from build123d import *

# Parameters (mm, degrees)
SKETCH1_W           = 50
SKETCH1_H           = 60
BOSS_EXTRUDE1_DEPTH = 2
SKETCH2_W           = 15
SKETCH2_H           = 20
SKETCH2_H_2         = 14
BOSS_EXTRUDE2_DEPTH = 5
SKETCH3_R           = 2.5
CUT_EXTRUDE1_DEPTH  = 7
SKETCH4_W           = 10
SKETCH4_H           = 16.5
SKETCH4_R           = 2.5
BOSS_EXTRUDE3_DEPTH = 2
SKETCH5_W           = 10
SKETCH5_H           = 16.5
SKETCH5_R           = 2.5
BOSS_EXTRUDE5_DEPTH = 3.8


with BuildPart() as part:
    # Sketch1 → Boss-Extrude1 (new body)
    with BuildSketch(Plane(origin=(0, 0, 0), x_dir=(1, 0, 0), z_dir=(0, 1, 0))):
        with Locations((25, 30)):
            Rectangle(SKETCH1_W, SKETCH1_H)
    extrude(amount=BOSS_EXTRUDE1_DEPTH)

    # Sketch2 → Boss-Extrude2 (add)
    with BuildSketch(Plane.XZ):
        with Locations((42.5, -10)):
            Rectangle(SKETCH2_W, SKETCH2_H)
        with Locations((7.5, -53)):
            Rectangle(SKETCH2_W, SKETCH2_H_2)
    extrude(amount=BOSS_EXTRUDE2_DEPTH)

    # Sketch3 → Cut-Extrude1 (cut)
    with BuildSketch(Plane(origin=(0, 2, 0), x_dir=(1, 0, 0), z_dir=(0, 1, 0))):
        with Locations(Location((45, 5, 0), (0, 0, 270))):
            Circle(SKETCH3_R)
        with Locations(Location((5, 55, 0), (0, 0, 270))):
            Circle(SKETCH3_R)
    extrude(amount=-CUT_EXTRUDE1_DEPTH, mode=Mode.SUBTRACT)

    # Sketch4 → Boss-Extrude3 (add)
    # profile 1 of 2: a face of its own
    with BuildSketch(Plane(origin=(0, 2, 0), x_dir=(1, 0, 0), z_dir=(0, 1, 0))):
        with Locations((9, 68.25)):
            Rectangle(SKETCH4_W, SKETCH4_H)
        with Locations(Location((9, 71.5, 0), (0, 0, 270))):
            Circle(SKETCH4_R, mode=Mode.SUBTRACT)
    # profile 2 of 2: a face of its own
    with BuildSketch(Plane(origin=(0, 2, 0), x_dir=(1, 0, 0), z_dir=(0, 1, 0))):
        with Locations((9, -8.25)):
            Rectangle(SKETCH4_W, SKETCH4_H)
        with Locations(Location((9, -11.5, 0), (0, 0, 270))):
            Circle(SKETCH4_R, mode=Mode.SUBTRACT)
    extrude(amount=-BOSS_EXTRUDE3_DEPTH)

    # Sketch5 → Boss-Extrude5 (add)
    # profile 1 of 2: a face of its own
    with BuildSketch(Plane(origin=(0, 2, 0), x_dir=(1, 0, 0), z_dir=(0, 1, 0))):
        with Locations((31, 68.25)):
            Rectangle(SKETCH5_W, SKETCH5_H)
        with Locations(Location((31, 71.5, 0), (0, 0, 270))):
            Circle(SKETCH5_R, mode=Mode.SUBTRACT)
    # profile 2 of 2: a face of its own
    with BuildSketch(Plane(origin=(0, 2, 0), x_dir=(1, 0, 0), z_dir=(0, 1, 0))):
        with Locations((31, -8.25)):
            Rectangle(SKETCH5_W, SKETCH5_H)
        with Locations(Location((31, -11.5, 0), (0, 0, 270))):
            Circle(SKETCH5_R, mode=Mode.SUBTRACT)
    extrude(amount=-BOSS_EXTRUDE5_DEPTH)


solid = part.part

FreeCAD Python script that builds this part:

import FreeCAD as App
import Part
import Sketcher
Q = App.Units.Quantity

doc = App.newDocument("Part")
params = doc.addObject("Spreadsheet::Sheet", "Params")
for row, (alias, value) in enumerate([
    ("sketch1_width", "50 mm"),
    ("sketch1_height", "60 mm"),
    ("pad1_length", "2 mm"),
    ("sketch2_width", "15 mm"),
    ("sketch2_height", "20 mm"),
    ("sketch2_height2", "14 mm"),
    ("pad2_length", "5 mm"),
    ("sketch3_diameter", "5 mm"),
    ("pocket1_length", "7 mm"),
    ("sketch4_diameter", "5 mm"),
    ("sketch4_width", "10 mm"),
    ("sketch4_height", "16.5 mm"),
    ("pad3_length", "2 mm"),
    ("sketch5_diameter", "5 mm"),
    ("sketch5_width", "10 mm"),
    ("sketch5_height", "16.5 mm"),
    ("pad4_length", "3.8 mm"),
], start=1):
    params.set(f"A{row}", alias)
    params.set(f"B{row}", "=" + value)
    params.setAlias(f"B{row}", alias)

body = doc.addObject("PartDesign::Body", "Body")

sketch1 = body.newObject("Sketcher::SketchObject", "Sketch")
sketch1.AttachmentSupport = (doc.getObject("XZ_Plane"), [""])
sketch1.MapMode = "FlatFace"
sketch1.addGeometry(Part.LineSegment(App.Vector(0, -60, 0), App.Vector(0, 0, 0)), False)
sketch1.addGeometry(Part.LineSegment(App.Vector(0, 0, 0), App.Vector(50, 0, 0)), False)
sketch1.addGeometry(Part.LineSegment(App.Vector(50, 0, 0), App.Vector(50, -60, 0)), False)
sketch1.addGeometry(Part.LineSegment(App.Vector(50, -60, 0), App.Vector(0, -60, 0)), False)
sketch1.addConstraint(Sketcher.Constraint("Coincident", 0, 2, 1, 1))
sketch1.addConstraint(Sketcher.Constraint("Coincident", 1, 2, 2, 1))
sketch1.addConstraint(Sketcher.Constraint("Coincident", 2, 2, 3, 1))
sketch1.addConstraint(Sketcher.Constraint("Coincident", 3, 2, 0, 1))
sketch1.addConstraint(Sketcher.Constraint("Vertical", 0))
sketch1.addConstraint(Sketcher.Constraint("Horizontal", 1))
sketch1.addConstraint(Sketcher.Constraint("Vertical", 2))
sketch1.addConstraint(Sketcher.Constraint("Horizontal", 3))
sketch1.addConstraint(Sketcher.Constraint("Coincident", 0, 2, -1, 1))
sketch1.addConstraint(Sketcher.Constraint("DistanceX", 1, 1, 1, 2, Q("50 mm")))
sketch1.addConstraint(Sketcher.Constraint("DistanceY", 0, 1, 0, 2, Q("60 mm")))
sketch1.setExpression("Constraints[9]", "Params.sketch1_width")
sketch1.setExpression("Constraints[10]", "Params.sketch1_height")
pad1 = body.newObject("PartDesign::Pad", "Pad")
pad1.Profile = sketch1
pad1.setExpression("Length", "Params.pad1_length")
pad1.Reversed = True

sketch2 = body.newObject("Sketcher::SketchObject", "Sketch001")
sketch2.AttachmentSupport = (doc.getObject("XZ_Plane"), [""])
sketch2.MapMode = "FlatFace"
sketch2.addGeometry(Part.LineSegment(App.Vector(35, 0, 0), App.Vector(35, -20, 0)), False)
sketch2.addGeometry(Part.LineSegment(App.Vector(35, -20, 0), App.Vector(50, -20, 0)), False)
sketch2.addGeometry(Part.LineSegment(App.Vector(50, -20, 0), App.Vector(50, 0, 0)), False)
sketch2.addGeometry(Part.LineSegment(App.Vector(50, 0, 0), App.Vector(35, 0, 0)), False)
sketch2.addGeometry(Part.LineSegment(App.Vector(0, -46, 0), App.Vector(0, -60, 0)), False)
sketch2.addGeometry(Part.LineSegment(App.Vector(0, -60, 0), App.Vector(15, -60, 0)), False)
sketch2.addGeometry(Part.LineSegment(App.Vector(15, -60, 0), App.Vector(15, -46, 0)), False)
sketch2.addGeometry(Part.LineSegment(App.Vector(15, -46, 0), App.Vector(0, -46, 0)), False)
sketch2.addConstraint(Sketcher.Constraint("Coincident", 0, 2, 1, 1))
sketch2.addConstraint(Sketcher.Constraint("Coincident", 1, 2, 2, 1))
sketch2.addConstraint(Sketcher.Constraint("Coincident", 2, 2, 3, 1))
sketch2.addConstraint(Sketcher.Constraint("Coincident", 3, 2, 0, 1))
sketch2.addConstraint(Sketcher.Constraint("Coincident", 4, 2, 5, 1))
sketch2.addConstraint(Sketcher.Constraint("Coincident", 5, 2, 6, 1))
sketch2.addConstraint(Sketcher.Constraint("Coincident", 6, 2, 7, 1))
sketch2.addConstraint(Sketcher.Constraint("Coincident", 7, 2, 4, 1))
sketch2.addConstraint(Sketcher.Constraint("Vertical", 0))
sketch2.addConstraint(Sketcher.Constraint("Horizontal", 1))
sketch2.addConstraint(Sketcher.Constraint("Vertical", 2))
sketch2.addConstraint(Sketcher.Constraint("Horizontal", 3))
sketch2.addConstraint(Sketcher.Constraint("Vertical", 4))
sketch2.addConstraint(Sketcher.Constraint("Horizontal", 5))
sketch2.addConstraint(Sketcher.Constraint("Vertical", 6))
sketch2.addConstraint(Sketcher.Constraint("Horizontal", 7))
sketch2.addConstraint(Sketcher.Constraint("PointOnObject", 2, 2, -1))
sketch2.addConstraint(Sketcher.Constraint("PointOnObject", 4, 2, -2))
sketch2.addConstraint(Sketcher.Constraint("Equal", 3, 5))
sketch2.addConstraint(Sketcher.Constraint("DistanceX", 1, 1, 1, 2, Q("15 mm")))
sketch2.addConstraint(Sketcher.Constraint("DistanceY", 0, 2, 0, 1, Q("20 mm")))
sketch2.addConstraint(Sketcher.Constraint("DistanceY", 4, 2, 4, 1, Q("14 mm")))
sketch2.addConstraint(Sketcher.Constraint("DistanceX", -1, 1, 0, 2, Q("35 mm")))
sketch2.addConstraint(Sketcher.Constraint("DistanceY", 4, 2, -1, 1, Q("60 mm")))
sketch2.setExpression("Constraints[19]", "Params.sketch2_width")
sketch2.setExpression("Constraints[20]", "Params.sketch2_height")
sketch2.setExpression("Constraints[21]", "Params.sketch2_height2")
pad2 = body.newObject("PartDesign::Pad", "Pad001")
pad2.Profile = sketch2
pad2.setExpression("Length", "Params.pad2_length")

sketch3 = body.newObject("Sketcher::SketchObject", "Sketch002")
sketch3.AttachmentSupport = (doc.getObject("XZ_Plane"), [""])
sketch3.MapMode = "FlatFace"
sketch3.AttachmentOffset = App.Placement(App.Vector(0, 0, -2), App.Rotation())
sketch3.addGeometry(Part.Circle(App.Vector(45, -5, 0), App.Vector(0, 0, 1), 2.5), False)
sketch3.addGeometry(Part.Circle(App.Vector(5, -55, 0), App.Vector(0, 0, 1), 2.5), False)
sketch3.addConstraint(Sketcher.Constraint("Equal", 0, 1))
sketch3.addConstraint(Sketcher.Constraint("Diameter", 0, Q("5 mm")))
sketch3.addConstraint(Sketcher.Constraint("DistanceX", -1, 1, 0, 3, Q("45 mm")))
sketch3.addConstraint(Sketcher.Constraint("DistanceY", 0, 3, -1, 1, Q("5 mm")))
sketch3.addConstraint(Sketcher.Constraint("DistanceX", -1, 1, 1, 3, Q("5 mm")))
sketch3.addConstraint(Sketcher.Constraint("DistanceY", 1, 3, -1, 1, Q("55 mm")))
sketch3.setExpression("Constraints[1]", "Params.sketch3_diameter")
pocket1 = body.newObject("PartDesign::Pocket", "Pocket")
pocket1.Profile = sketch3
pocket1.setExpression("Length", "Params.pocket1_length")
pocket1.Reversed = True

sketch4 = body.newObject("Sketcher::SketchObject", "Sketch003")
sketch4.AttachmentSupport = (doc.getObject("XZ_Plane"), [""])
sketch4.MapMode = "FlatFace"
sketch4.AttachmentOffset = App.Placement(App.Vector(0, 0, -2), App.Rotation())
sketch4.addGeometry(Part.LineSegment(App.Vector(4, -76.5, 0), App.Vector(4, -60, 0)), False)
sketch4.addGeometry(Part.LineSegment(App.Vector(4, -60, 0), App.Vector(14, -60, 0)), False)
sketch4.addGeometry(Part.LineSegment(App.Vector(14, -60, 0), App.Vector(14, -76.5, 0)), False)
sketch4.addGeometry(Part.LineSegment(App.Vector(14, -76.5, 0), App.Vector(4, -76.5, 0)), False)
sketch4.addGeometry(Part.Circle(App.Vector(9, -71.5, 0), App.Vector(0, 0, 1), 2.5), False)
sketch4.addGeometry(Part.LineSegment(App.Vector(4, 0, 0), App.Vector(4, 16.5, 0)), False)
sketch4.addGeometry(Part.LineSegment(App.Vector(4, 16.5, 0), App.Vector(14, 16.5, 0)), False)
sketch4.addGeometry(Part.LineSegment(App.Vector(14, 16.5, 0), App.Vector(14, 0, 0)), False)
sketch4.addGeometry(Part.LineSegment(App.Vector(14, 0, 0), App.Vector(4, 0, 0)), False)
sketch4.addGeometry(Part.Circle(App.Vector(9, 11.5, 0), App.Vector(0, 0, 1), 2.5), False)
sketch4.addConstraint(Sketcher.Constraint("Coincident", 0, 2, 1, 1))
sketch4.addConstraint(Sketcher.Constraint("Coincident", 1, 2, 2, 1))
sketch4.addConstraint(Sketcher.Constraint("Coincident", 2, 2, 3, 1))
sketch4.addConstraint(Sketcher.Constraint("Coincident", 3, 2, 0, 1))
sketch4.addConstraint(Sketcher.Constraint("Coincident", 5, 2, 6, 1))
sketch4.addConstraint(Sketcher.Constraint("Coincident", 6, 2, 7, 1))
sketch4.addConstraint(Sketcher.Constraint("Coincident", 7, 2, 8, 1))
sketch4.addConstraint(Sketcher.Constraint("Coincident", 8, 2, 5, 1))
sketch4.addConstraint(Sketcher.Constraint("Vertical", 0))
sketch4.addConstraint(Sketcher.Constraint("Horizontal", 1))
sketch4.addConstraint(Sketcher.Constraint("Vertical", 2))
sketch4.addConstraint(Sketcher.Constraint("Horizontal", 3))
sketch4.addConstraint(Sketcher.Constraint("Vertical", 5))
sketch4.addConstraint(Sketcher.Constraint("Horizontal", 6))
sketch4.addConstraint(Sketcher.Constraint("Vertical", 7))
sketch4.addConstraint(Sketcher.Constraint("Horizontal", 8))
sketch4.addConstraint(Sketcher.Constraint("Equal", 4, 9))
sketch4.addConstraint(Sketcher.Constraint("PointOnObject", 7, 2, -1))
sketch4.addConstraint(Sketcher.Constraint("Vertical", 4, 3, 9, 3))
sketch4.addConstraint(Sketcher.Constraint("Vertical", 3, 2, 5, 2))
sketch4.addConstraint(Sketcher.Constraint("Vertical", 2, 2, 6, 2))
sketch4.addConstraint(Sketcher.Constraint("Equal", 2, 5))
sketch4.addConstraint(Sketcher.Constraint("Diameter", 4, Q("5 mm")))
sketch4.addConstraint(Sketcher.Constraint("DistanceX", 1, 1, 1, 2, Q("10 mm")))
sketch4.addConstraint(Sketcher.Constraint("DistanceY", 0, 1, 0, 2, Q("16.5 mm")))
sketch4.addConstraint(Sketcher.Constraint("DistanceX", -1, 1, 4, 3, Q("9 mm")))
sketch4.addConstraint(Sketcher.Constraint("DistanceX", -1, 1, 0, 2, Q("4 mm")))
sketch4.addConstraint(Sketcher.Constraint("DistanceY", 0, 2, -1, 1, Q("60 mm")))
sketch4.addConstraint(Sketcher.Constraint("DistanceY", 4, 3, 9, 3, Q("83 mm")))
sketch4.addConstraint(Sketcher.Constraint("DistanceY", 2, 2, 4, 3, Q("5 mm")))
sketch4.setExpression("Constraints[22]", "Params.sketch4_diameter")
sketch4.setExpression("Constraints[23]", "Params.sketch4_width")
sketch4.setExpression("Constraints[24]", "Params.sketch4_height")
pad3 = body.newObject("PartDesign::Pad", "Pad002")
pad3.Profile = sketch4
pad3.setExpression("Length", "Params.pad3_length")

sketch5 = body.newObject("Sketcher::SketchObject", "Sketch004")
sketch5.AttachmentSupport = (doc.getObject("XZ_Plane"), [""])
sketch5.MapMode = "FlatFace"
sketch5.AttachmentOffset = App.Placement(App.Vector(0, 0, -2), App.Rotation())
sketch5.addGeometry(Part.LineSegment(App.Vector(26, -76.5, 0), App.Vector(26, -60, 0)), False)
sketch5.addGeometry(Part.LineSegment(App.Vector(26, -60, 0), App.Vector(36, -60, 0)), False)
sketch5.addGeometry(Part.LineSegment(App.Vector(36, -60, 0), App.Vector(36, -76.5, 0)), False)
sketch5.addGeometry(Part.LineSegment(App.Vector(36, -76.5, 0), App.Vector(26, -76.5, 0)), False)
sketch5.addGeometry(Part.Circle(App.Vector(31, -71.5, 0), App.Vector(0, 0, 1), 2.5), False)
sketch5.addGeometry(Part.LineSegment(App.Vector(26, 0, 0), App.Vector(26, 16.5, 0)), False)
sketch5.addGeometry(Part.LineSegment(App.Vector(26, 16.5, 0), App.Vector(36, 16.5, 0)), False)
sketch5.addGeometry(Part.LineSegment(App.Vector(36, 16.5, 0), App.Vector(36, 0, 0)), False)
sketch5.addGeometry(Part.LineSegment(App.Vector(36, 0, 0), App.Vector(26, 0, 0)), False)
sketch5.addGeometry(Part.Circle(App.Vector(31, 11.5, 0), App.Vector(0, 0, 1), 2.5), False)
sketch5.addConstraint(Sketcher.Constraint("Coincident", 0, 2, 1, 1))
sketch5.addConstraint(Sketcher.Constraint("Coincident", 1, 2, 2, 1))
sketch5.addConstraint(Sketcher.Constraint("Coincident", 2, 2, 3, 1))
sketch5.addConstraint(Sketcher.Constraint("Coincident", 3, 2, 0, 1))
sketch5.addConstraint(Sketcher.Constraint("Coincident", 5, 2, 6, 1))
sketch5.addConstraint(Sketcher.Constraint("Coincident", 6, 2, 7, 1))
sketch5.addConstraint(Sketcher.Constraint("Coincident", 7, 2, 8, 1))
sketch5.addConstraint(Sketcher.Constraint("Coincident", 8, 2, 5, 1))
sketch5.addConstraint(Sketcher.Constraint("Vertical", 0))
sketch5.addConstraint(Sketcher.Constraint("Horizontal", 1))
sketch5.addConstraint(Sketcher.Constraint("Vertical", 2))
sketch5.addConstraint(Sketcher.Constraint("Horizontal", 3))
sketch5.addConstraint(Sketcher.Constraint("Vertical", 5))
sketch5.addConstraint(Sketcher.Constraint("Horizontal", 6))
sketch5.addConstraint(Sketcher.Constraint("Vertical", 7))
sketch5.addConstraint(Sketcher.Constraint("Horizontal", 8))
sketch5.addConstraint(Sketcher.Constraint("Equal", 4, 9))
sketch5.addConstraint(Sketcher.Constraint("PointOnObject", 7, 2, -1))
sketch5.addConstraint(Sketcher.Constraint("Vertical", 4, 3, 9, 3))
sketch5.addConstraint(Sketcher.Constraint("Vertical", 3, 2, 5, 2))
sketch5.addConstraint(Sketcher.Constraint("Vertical", 2, 2, 6, 2))
sketch5.addConstraint(Sketcher.Constraint("Equal", 2, 5))
sketch5.addConstraint(Sketcher.Constraint("Diameter", 4, Q("5 mm")))
sketch5.addConstraint(Sketcher.Constraint("DistanceX", 1, 1, 1, 2, Q("10 mm")))
sketch5.addConstraint(Sketcher.Constraint("DistanceY", 0, 1, 0, 2, Q("16.5 mm")))
sketch5.addConstraint(Sketcher.Constraint("DistanceX", -1, 1, 4, 3, Q("31 mm")))
sketch5.addConstraint(Sketcher.Constraint("DistanceX", -1, 1, 0, 2, Q("26 mm")))
sketch5.addConstraint(Sketcher.Constraint("DistanceY", 0, 2, -1, 1, Q("60 mm")))
sketch5.addConstraint(Sketcher.Constraint("DistanceY", 4, 3, 9, 3, Q("83 mm")))
sketch5.addConstraint(Sketcher.Constraint("DistanceY", 2, 2, 4, 3, Q("5 mm")))
sketch5.setExpression("Constraints[22]", "Params.sketch5_diameter")
sketch5.setExpression("Constraints[23]", "Params.sketch5_width")
sketch5.setExpression("Constraints[24]", "Params.sketch5_height")
pad4 = body.newObject("PartDesign::Pad", "Pad003")
pad4.Profile = sketch5
pad4.setExpression("Length", "Params.pad4_length")

doc.recompute()
